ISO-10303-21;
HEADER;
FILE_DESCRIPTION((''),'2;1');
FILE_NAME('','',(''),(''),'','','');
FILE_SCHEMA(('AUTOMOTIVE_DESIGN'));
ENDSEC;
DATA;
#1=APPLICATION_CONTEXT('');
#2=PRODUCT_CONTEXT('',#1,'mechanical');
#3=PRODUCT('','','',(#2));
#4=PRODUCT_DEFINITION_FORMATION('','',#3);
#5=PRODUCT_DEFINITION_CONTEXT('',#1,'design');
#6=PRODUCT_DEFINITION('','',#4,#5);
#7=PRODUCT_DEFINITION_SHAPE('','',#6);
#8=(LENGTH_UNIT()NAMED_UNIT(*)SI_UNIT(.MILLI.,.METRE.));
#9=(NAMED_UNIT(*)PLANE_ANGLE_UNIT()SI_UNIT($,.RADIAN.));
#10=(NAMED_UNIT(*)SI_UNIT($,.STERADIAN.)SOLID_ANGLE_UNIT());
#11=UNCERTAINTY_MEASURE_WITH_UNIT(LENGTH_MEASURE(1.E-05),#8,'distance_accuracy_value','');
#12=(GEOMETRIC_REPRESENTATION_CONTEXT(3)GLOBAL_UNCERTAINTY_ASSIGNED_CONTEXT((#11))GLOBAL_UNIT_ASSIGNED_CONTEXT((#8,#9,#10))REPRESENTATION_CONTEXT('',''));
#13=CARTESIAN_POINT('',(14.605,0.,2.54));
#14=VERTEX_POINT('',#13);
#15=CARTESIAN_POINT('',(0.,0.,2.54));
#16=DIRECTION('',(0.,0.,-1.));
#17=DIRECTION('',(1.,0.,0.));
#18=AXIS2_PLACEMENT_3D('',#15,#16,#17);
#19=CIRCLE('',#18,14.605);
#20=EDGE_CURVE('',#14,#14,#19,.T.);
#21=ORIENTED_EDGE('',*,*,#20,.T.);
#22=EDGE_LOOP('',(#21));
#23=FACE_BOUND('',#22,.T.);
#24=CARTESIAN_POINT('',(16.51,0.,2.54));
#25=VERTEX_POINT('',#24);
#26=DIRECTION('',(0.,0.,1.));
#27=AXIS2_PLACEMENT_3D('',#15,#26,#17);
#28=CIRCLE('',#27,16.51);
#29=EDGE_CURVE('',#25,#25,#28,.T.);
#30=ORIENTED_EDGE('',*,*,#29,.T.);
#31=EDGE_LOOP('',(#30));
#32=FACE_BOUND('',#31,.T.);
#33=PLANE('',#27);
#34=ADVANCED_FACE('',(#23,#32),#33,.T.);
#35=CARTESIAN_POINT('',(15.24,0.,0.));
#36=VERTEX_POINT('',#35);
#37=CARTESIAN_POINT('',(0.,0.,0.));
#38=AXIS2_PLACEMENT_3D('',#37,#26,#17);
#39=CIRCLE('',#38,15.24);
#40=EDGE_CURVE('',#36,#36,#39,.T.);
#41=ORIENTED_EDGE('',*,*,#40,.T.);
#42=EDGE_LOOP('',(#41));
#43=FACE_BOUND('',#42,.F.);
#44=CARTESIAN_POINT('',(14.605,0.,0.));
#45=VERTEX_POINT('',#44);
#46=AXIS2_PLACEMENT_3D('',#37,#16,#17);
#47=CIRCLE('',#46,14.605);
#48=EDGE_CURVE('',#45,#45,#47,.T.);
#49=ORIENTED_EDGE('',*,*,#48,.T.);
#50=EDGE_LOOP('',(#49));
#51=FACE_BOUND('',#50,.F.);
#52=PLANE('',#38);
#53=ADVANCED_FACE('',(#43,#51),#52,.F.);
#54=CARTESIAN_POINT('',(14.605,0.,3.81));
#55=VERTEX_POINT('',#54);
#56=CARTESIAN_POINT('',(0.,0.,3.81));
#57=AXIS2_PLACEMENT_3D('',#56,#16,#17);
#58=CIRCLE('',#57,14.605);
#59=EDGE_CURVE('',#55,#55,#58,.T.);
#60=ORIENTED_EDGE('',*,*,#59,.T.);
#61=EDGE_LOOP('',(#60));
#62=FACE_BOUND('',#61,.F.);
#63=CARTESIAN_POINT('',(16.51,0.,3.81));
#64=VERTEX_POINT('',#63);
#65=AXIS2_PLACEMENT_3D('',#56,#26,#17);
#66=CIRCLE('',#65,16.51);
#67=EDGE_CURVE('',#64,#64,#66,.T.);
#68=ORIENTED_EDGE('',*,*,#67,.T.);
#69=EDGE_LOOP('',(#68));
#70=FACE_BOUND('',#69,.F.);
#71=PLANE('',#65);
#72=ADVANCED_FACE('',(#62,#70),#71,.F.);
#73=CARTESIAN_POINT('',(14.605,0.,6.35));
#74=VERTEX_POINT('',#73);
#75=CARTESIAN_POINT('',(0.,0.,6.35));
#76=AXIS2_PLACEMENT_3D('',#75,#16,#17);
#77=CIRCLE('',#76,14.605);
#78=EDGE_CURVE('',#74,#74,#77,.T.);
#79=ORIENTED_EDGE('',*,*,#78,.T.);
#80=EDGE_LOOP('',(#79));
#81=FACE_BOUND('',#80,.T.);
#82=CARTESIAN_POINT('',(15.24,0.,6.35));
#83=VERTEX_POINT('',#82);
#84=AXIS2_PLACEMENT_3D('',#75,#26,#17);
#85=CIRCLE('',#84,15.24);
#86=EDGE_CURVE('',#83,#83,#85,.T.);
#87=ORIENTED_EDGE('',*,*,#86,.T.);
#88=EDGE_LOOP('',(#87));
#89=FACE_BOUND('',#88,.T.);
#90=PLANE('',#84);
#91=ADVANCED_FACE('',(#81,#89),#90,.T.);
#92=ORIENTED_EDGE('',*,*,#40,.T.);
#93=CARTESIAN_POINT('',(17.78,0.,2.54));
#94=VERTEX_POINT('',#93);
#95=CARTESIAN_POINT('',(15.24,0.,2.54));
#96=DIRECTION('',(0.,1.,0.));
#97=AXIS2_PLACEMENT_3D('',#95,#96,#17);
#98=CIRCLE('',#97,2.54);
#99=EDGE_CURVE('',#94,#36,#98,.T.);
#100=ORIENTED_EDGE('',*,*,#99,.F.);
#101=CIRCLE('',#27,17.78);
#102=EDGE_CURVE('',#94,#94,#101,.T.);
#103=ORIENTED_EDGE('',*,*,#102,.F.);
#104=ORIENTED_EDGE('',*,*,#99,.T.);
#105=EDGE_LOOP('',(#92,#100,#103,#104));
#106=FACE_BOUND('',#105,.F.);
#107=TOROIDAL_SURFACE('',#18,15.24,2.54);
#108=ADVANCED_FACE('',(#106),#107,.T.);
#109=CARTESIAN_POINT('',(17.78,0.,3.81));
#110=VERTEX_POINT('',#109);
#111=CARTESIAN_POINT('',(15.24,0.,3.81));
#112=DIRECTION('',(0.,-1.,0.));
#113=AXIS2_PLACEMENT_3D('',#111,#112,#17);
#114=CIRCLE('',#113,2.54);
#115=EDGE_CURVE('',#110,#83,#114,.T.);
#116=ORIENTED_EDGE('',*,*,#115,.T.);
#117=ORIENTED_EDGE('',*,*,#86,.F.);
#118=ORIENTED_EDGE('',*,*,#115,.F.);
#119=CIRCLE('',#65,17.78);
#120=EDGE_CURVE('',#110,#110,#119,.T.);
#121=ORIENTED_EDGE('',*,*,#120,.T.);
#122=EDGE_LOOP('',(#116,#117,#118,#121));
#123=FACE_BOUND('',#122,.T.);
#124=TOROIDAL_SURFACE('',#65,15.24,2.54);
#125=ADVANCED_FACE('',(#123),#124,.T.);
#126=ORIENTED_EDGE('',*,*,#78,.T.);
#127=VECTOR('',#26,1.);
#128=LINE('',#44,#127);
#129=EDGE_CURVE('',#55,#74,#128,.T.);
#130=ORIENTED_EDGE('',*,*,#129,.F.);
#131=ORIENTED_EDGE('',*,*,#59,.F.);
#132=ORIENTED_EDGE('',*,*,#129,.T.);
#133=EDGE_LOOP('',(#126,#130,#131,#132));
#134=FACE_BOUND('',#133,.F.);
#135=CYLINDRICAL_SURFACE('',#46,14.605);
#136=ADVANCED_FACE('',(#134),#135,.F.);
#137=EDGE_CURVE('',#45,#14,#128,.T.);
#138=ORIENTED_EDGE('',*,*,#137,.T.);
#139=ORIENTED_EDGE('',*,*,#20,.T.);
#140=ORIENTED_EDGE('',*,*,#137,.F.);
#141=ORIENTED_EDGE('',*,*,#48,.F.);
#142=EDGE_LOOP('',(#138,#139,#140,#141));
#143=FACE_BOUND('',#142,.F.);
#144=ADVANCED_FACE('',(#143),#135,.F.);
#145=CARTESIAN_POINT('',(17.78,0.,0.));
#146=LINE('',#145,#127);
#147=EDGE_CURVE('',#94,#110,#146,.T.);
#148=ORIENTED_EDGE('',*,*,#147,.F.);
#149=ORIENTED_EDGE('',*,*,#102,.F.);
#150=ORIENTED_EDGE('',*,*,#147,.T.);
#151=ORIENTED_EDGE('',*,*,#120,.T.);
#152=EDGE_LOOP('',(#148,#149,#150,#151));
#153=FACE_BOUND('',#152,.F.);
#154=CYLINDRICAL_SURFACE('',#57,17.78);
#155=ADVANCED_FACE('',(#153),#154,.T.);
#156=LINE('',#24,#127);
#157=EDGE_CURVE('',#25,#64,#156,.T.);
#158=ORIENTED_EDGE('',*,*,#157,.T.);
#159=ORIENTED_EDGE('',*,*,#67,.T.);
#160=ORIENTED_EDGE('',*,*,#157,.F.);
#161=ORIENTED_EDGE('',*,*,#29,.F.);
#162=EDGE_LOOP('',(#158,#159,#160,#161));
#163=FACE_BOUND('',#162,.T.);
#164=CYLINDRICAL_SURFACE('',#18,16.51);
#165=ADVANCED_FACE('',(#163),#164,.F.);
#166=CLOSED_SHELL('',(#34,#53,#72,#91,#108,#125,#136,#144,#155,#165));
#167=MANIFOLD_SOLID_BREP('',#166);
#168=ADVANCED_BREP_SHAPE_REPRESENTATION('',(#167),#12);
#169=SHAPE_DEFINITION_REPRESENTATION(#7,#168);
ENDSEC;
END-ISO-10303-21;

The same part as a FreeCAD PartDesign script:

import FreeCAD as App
import Part
import Sketcher
Q = App.Units.Quantity


def edges_at(feature, points):
    """Names of the edges that pass closest to the given points."""
    edges = feature.Shape.Edges
    near = lambda p: min(range(len(edges)), key=lambda i: edges[i].distToShape(Part.Vertex(*p))[0])
    return sorted({f"Edge{near(p) + 1}" for p in points})

doc = App.newDocument("Part")
body = doc.addObject("PartDesign::Body", "Body")

# Sketch on XY plane
sketch1 = body.newObject("Sketcher::SketchObject", "Sketch")
sketch1.AttachmentSupport = (doc.getObject("XY_Plane"), [""])
sketch1.MapMode = "FlatFace"
sketch1.addGeometry(Part.Circle(App.Vector(0, 0, 0), App.Vector(0, 0, 1), 17.78), False)
sketch1.addConstraint(Sketcher.Constraint("Coincident", 0, 3, -1, 1))
sketch1.addConstraint(Sketcher.Constraint("Diameter", 0, Q("1.4 in")))
pad1 = body.newObject("PartDesign::Pad", "Pad")
pad1.Profile = sketch1
pad1.Length = Q("0.1 in")

# Sketch on XY plane
sketch2 = body.newObject("Sketcher::SketchObject", "Sketch001")
sketch2.AttachmentSupport = (doc.getObject("XY_Plane"), [""])
sketch2.MapMode = "FlatFace"
sketch2.AttachmentOffset = App.Placement(App.Vector(0, 0, 0.1 * 25.4), App.Rotation())
sketch2.addGeometry(Part.Circle(App.Vector(0, 0, 0), App.Vector(0, 0, 1), 17.78), False)
sketch2.addGeometry(Part.Circle(App.Vector(0, 0, 0), App.Vector(0, 0, 1), 16.51), False)
sketch2.addConstraint(Sketcher.Constraint("Coincident", 0, 3, -1, 1))
sketch2.addConstraint(Sketcher.Constraint("Coincident", 1, 3, -1, 1))
sketch2.addConstraint(Sketcher.Constraint("Diameter", 0, Q("1.4 in")))
sketch2.addConstraint(Sketcher.Constraint("Diameter", 1, Q("1.3 in")))
pad2 = body.newObject("PartDesign::Pad", "Pad001")
pad2.Profile = sketch2
pad2.Length = Q("0.05 in")

# Sketch on XY plane
sketch3 = body.newObject("Sketcher::SketchObject", "Sketch002")
sketch3.AttachmentSupport = (doc.getObject("XY_Plane"), [""])
sketch3.MapMode = "FlatFace"
sketch3.AttachmentOffset = App.Placement(App.Vector(0, 0, 0.15 * 25.4), App.Rotation())
sketch3.addGeometry(Part.Circle(App.Vector(0, 0, 0), App.Vector(0, 0, 1), 17.78), False)
sketch3.addConstraint(Sketcher.Constraint("Coincident", 0, 3, -1, 1))
sketch3.addConstraint(Sketcher.Constraint("Diameter", 0, Q("1.4 in")))
pad3 = body.newObject("PartDesign::Pad", "Pad002")
pad3.Profile = sketch3
pad3.Length = Q("0.1 in")

# Sketch on XY plane
sketch4 = body.newObject("Sketcher::SketchObject", "Sketch003")
sketch4.AttachmentSupport = (doc.getObject("XY_Plane"), [""])
sketch4.MapMode = "FlatFace"
sketch4.addGeometry(Part.Circle(App.Vector(0, 0, 0), App.Vector(0, 0, 1), 14.605), False)
sketch4.addConstraint(Sketcher.Constraint("Coincident", 0, 3, -1, 1))
sketch4.addConstraint(Sketcher.Constraint("Diameter", 0, Q("1.15 in")))
pocket1 = body.newObject("PartDesign::Pocket", "Pocket")
pocket1.Profile = sketch4
pocket1.Length = Q("2 in")
pocket1.Reversed = True
doc.recompute()

fillet = body.newObject("PartDesign::Fillet", "Fillet")
fillet.Base = (pocket1, edges_at(pocket1, [(-17.78, 0, 6.35), (-17.78, 0, 0)]))
fillet.Radius = Q("0.1 in")

doc.recompute()
